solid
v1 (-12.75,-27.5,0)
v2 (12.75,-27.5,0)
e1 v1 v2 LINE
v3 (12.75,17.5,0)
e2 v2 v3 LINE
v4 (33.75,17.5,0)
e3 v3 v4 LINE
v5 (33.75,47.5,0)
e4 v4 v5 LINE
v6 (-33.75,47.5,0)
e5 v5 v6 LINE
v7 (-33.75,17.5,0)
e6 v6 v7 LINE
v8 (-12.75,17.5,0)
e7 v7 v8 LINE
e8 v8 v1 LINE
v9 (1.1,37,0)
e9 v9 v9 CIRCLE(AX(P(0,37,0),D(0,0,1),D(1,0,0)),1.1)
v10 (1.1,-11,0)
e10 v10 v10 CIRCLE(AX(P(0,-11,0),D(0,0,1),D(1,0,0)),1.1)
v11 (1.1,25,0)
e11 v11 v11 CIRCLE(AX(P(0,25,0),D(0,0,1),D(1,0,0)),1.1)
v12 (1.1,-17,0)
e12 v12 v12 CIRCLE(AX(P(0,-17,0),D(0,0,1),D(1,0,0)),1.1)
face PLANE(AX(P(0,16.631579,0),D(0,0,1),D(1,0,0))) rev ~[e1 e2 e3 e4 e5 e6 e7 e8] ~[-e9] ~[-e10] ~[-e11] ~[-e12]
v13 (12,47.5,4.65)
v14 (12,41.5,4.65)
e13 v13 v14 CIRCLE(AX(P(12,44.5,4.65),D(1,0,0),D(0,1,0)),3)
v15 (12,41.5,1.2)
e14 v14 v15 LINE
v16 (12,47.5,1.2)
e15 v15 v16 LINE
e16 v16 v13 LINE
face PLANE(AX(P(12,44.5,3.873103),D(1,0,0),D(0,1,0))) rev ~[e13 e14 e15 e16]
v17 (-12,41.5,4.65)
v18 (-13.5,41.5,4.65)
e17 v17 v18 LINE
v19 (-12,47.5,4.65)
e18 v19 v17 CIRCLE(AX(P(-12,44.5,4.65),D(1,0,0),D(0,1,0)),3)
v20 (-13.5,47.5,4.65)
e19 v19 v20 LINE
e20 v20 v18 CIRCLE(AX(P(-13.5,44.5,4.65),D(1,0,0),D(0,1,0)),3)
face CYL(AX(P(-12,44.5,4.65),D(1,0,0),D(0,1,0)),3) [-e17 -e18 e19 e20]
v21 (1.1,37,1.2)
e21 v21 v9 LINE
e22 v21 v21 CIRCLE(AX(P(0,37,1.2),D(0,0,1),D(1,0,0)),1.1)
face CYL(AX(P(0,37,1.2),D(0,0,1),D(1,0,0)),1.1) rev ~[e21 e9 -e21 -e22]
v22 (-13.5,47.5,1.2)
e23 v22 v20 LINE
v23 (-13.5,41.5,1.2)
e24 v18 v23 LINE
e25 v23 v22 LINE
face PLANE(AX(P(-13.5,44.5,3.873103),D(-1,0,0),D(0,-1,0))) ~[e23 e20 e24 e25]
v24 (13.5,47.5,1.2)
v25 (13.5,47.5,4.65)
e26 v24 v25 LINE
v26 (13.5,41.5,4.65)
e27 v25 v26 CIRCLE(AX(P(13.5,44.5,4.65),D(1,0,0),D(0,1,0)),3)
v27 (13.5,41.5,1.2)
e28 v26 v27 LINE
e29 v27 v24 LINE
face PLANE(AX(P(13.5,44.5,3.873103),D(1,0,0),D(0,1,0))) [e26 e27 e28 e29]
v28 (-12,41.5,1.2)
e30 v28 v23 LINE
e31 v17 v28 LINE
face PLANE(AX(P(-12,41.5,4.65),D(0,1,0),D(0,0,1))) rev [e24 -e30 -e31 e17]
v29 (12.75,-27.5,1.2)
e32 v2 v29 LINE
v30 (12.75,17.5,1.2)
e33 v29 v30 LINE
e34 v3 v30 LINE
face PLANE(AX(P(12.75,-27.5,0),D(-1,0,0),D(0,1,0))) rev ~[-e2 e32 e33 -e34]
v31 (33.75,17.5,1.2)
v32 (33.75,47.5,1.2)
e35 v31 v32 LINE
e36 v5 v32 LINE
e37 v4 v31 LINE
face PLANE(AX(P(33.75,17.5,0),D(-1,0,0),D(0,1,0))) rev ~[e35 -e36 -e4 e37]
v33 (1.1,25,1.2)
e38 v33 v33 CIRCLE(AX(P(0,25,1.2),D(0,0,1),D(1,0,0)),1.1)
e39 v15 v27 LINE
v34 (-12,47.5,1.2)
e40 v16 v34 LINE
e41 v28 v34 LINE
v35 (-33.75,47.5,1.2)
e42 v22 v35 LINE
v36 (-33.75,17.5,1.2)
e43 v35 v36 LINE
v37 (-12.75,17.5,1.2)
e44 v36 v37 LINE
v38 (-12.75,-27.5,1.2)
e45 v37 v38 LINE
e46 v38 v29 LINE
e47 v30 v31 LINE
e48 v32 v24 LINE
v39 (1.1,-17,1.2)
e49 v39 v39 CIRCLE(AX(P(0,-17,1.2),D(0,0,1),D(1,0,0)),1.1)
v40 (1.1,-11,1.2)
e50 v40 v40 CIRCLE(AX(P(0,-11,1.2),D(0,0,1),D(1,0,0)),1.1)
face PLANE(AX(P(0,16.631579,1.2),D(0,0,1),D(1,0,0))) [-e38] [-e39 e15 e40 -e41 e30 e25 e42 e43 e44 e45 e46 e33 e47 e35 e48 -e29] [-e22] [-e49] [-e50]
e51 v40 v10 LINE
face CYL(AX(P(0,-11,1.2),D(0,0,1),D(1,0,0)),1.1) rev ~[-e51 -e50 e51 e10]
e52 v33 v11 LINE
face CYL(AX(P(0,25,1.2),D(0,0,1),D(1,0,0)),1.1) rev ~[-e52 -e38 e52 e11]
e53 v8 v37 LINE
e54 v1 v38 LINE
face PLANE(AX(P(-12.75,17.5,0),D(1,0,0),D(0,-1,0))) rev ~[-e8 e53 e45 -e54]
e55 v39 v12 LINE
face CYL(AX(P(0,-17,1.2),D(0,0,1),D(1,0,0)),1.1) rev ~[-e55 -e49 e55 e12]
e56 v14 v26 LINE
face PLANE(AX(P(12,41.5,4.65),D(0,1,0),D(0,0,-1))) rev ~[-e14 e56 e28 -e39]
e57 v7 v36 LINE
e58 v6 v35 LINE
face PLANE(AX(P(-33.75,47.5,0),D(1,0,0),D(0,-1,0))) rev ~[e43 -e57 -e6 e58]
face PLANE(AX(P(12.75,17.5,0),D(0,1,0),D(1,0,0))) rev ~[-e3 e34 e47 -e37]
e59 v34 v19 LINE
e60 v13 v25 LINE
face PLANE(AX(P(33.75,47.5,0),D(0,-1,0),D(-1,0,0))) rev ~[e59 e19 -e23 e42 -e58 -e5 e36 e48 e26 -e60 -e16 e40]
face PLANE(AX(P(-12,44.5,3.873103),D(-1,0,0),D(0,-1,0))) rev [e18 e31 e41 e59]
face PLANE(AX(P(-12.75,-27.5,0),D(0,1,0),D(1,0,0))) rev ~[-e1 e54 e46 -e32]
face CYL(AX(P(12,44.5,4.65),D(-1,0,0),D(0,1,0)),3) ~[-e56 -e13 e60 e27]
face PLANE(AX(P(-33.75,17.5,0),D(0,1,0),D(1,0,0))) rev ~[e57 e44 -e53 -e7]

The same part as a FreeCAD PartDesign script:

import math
import FreeCAD as App
import Part
import Sketcher

V = App.Vector

doc = App.newDocument("Part")
body = doc.addObject("PartDesign::Body", "Body")

sketch1 = doc.addObject("Sketcher::SketchObject", "Sketch")
body.addObject(sketch1)
sketch1.AttachmentSupport = (doc.XY_Plane, [""])
sketch1.MapMode = "FlatFace"
sketch1.addGeometry(Part.LineSegment(V(-13, 18, 0), V(-13, -28, 0)), False)
sketch1.addGeometry(Part.LineSegment(V(-13, -28, 0), V(13, -28, 0)), False)
sketch1.addGeometry(Part.LineSegment(V(13, -28, 0), V(13, 18, 0)), False)
sketch1.addGeometry(Part.LineSegment(V(13, 18, 0), V(34, 18, 0)), False)
sketch1.addGeometry(Part.LineSegment(V(34, 18, 0), V(34, 48, 0)), False)
sketch1.addGeometry(Part.LineSegment(V(34, 48, 0), V(-34, 48, 0)), False)
sketch1.addGeometry(Part.LineSegment(V(-34, 48, 0), V(-34, 18, 0)), False)
sketch1.addGeometry(Part.LineSegment(V(-34, 18, 0), V(-13, 18, 0)), False)
sketch1.addConstraint(Sketcher.Constraint("Coincident", 0, 2, 1, 1))
sketch1.addConstraint(Sketcher.Constraint("Coincident", 1, 2, 2, 1))
sketch1.addConstraint(Sketcher.Constraint("Coincident", 2, 2, 3, 1))
sketch1.addConstraint(Sketcher.Constraint("Coincident", 3, 2, 4, 1))
sketch1.addConstraint(Sketcher.Constraint("Coincident", 4, 2, 5, 1))
sketch1.addConstraint(Sketcher.Constraint("Coincident", 5, 2, 6, 1))
sketch1.addConstraint(Sketcher.Constraint("Coincident", 6, 2, 7, 1))
sketch1.addConstraint(Sketcher.Constraint("Coincident", 7, 2, 0, 1))
sketch1.addConstraint(Sketcher.Constraint("Vertical", 0))
sketch1.addConstraint(Sketcher.Constraint("Horizontal", 1))
sketch1.addConstraint(Sketcher.Constraint("Vertical", 2))
sketch1.addConstraint(Sketcher.Constraint("Horizontal", 3))
sketch1.addConstraint(Sketcher.Constraint("Vertical", 4))
sketch1.addConstraint(Sketcher.Constraint("Horizontal", 5))
sketch1.addConstraint(Sketcher.Constraint("Vertical", 6))
sketch1.addConstraint(Sketcher.Constraint("Horizontal", 7))
sketch1.addConstraint(Sketcher.Constraint("Symmetric", 3, 2, 6, 2, -2))
sketch1.addConstraint(Sketcher.Constraint("Equal", 3, 7))
sketch1.addConstraint(Sketcher.Constraint("DistanceX", 3, 1, 3, 2, 21.0))
sketch1.addConstraint(Sketcher.Constraint("DistanceY", 0, 2, 0, 1, 45.0))
sketch1.addConstraint(Sketcher.Constraint("DistanceY", 4, 1, 4, 2, 30.0))
sketch1.addConstraint(Sketcher.Constraint("DistanceX", 1, 1, 1, 2, 25.5))
sketch1.addConstraint(Sketcher.Constraint("DistanceY", 0, 2, -1, 1, 27.5))
pad1 = doc.addObject("PartDesign::Pad", "Pad")
body.addObject(pad1)
pad1.Profile = sketch1
pad1.Length = 1.2

sketch2 = doc.addObject("Sketcher::SketchObject", "Sketch001")
body.addObject(sketch2)
sketch2.AttachmentSupport = (doc.YZ_Plane, [""])
sketch2.MapMode = "FlatFace"
sketch2.AttachmentOffset = App.Placement(V(0, 0, 12), App.Rotation())
sketch2.addGeometry(Part.LineSegment(V(41.5, 4.7, 0), V(41.5, 1.2, 0)), False)
sketch2.addGeometry(Part.LineSegment(V(41.5, 1.2, 0), V(47.5, 1.2, 0)), False)
sketch2.addGeometry(Part.LineSegment(V(47.5, 1.2, 0), V(47.5, 4.7, 0)), False)
sketch2.addGeometry(Part.ArcOfCircle(Part.Circle(V(44.5, 4.7, 0), V(0, 0, 1), 3), math.radians(0), math.radians(180)), False)
sketch2.addConstraint(Sketcher.Constraint("Coincident", 0, 2, 1, 1))
sketch2.addConstraint(Sketcher.Constraint("Coincident", 1, 2, 2, 1))
sketch2.addConstraint(Sketcher.Constraint("Tangent", 2, 2, 3, 1))
sketch2.addConstraint(Sketcher.Constraint("Tangent", 3, 2, 0, 1))
sketch2.addConstraint(Sketcher.Constraint("Vertical", 0))
sketch2.addConstraint(Sketcher.Constraint("Horizontal", 1))
sketch2.addConstraint(Sketcher.Constraint("Vertical", 2))
sketch2.addConstraint(Sketcher.Constraint("Radius", 3, 3.0))
sketch2.addConstraint(Sketcher.Constraint("DistanceY", 0, 2, 0, 1, 3.45))
sketch2.addConstraint(Sketcher.Constraint("DistanceX", -1, 1, 3, 3, 44.5))
sketch2.addConstraint(Sketcher.Constraint("DistanceY", -1, 1, 0, 2, 1.2))
pad2 = doc.addObject("PartDesign::Pad", "Pad001")
body.addObject(pad2)
pad2.Profile = sketch2
pad2.Length = 1.5
body2 = doc.addObject("PartDesign::Body", "Body001")
doc.recompute()

body2.BaseFeature = body
doc.recompute()

mirroring = doc.addObject("Part::Mirroring", "Mirroring")
mirroring.Source = body
mirroring.Base = V(0, 0, 0)
mirroring.Normal = V(1, 0, 0)
body3 = doc.addObject("PartDesign::Body", "Body002")
body3.BaseFeature = mirroring
boolean = doc.addObject("PartDesign::Boolean", "Boolean")
body2.addObject(boolean)
boolean.Type = "Fuse"
boolean.addObjects([body3])
doc.recompute()

sketch3 = doc.addObject("Sketcher::SketchObject", "Sketch002")
body2.addObject(sketch3)
sketch3.AttachmentSupport = (doc.getObject("XY_Plane001"), [""])
sketch3.MapMode = "FlatFace"
sketch3.AttachmentOffset = App.Placement(V(0, 0, 1.2), App.Rotation())
sketch3.addGeometry(Part.Circle(V(0, 37, 0), V(0, 0, 1), 1.1), False)
sketch3.addGeometry(Part.Circle(V(0, 25, 0), V(0, 0, 1), 1.1), False)
sketch3.addGeometry(Part.Circle(V(0, -11, 0), V(0, 0, 1), 1.1), False)
sketch3.addGeometry(Part.Circle(V(0, -17, 0), V(0, 0, 1), 1.1), False)
sketch3.addConstraint(Sketcher.Constraint("Equal", 0, 1))
sketch3.addConstraint(Sketcher.Constraint("Equal", 1, 2))
sketch3.addConstraint(Sketcher.Constraint("Equal", 2, 3))
sketch3.addConstraint(Sketcher.Constraint("PointOnObject", 0, 3, -2))
sketch3.addConstraint(Sketcher.Constraint("PointOnObject", 1, 3, -2))
sketch3.addConstraint(Sketcher.Constraint("PointOnObject", 2, 3, -2))
sketch3.addConstraint(Sketcher.Constraint("PointOnObject", 3, 3, -2))
sketch3.addConstraint(Sketcher.Constraint("Diameter", 0, 2.2))
sketch3.addConstraint(Sketcher.Constraint("DistanceY", -1, 1, 0, 3, 37.0))
sketch3.addConstraint(Sketcher.Constraint("DistanceY", -1, 1, 1, 3, 25.0))
sketch3.addConstraint(Sketcher.Constraint("DistanceY", 2, 3, -1, 1, 11.0))
sketch3.addConstraint(Sketcher.Constraint("DistanceY", 3, 3, -1, 1, 17.0))
pocket1 = doc.addObject("PartDesign::Pocket", "Pocket")
body2.addObject(pocket1)
pocket1.Profile = sketch3
pocket1.Type = "ThroughAll"
mirroring.Visibility = False

doc.recompute()
